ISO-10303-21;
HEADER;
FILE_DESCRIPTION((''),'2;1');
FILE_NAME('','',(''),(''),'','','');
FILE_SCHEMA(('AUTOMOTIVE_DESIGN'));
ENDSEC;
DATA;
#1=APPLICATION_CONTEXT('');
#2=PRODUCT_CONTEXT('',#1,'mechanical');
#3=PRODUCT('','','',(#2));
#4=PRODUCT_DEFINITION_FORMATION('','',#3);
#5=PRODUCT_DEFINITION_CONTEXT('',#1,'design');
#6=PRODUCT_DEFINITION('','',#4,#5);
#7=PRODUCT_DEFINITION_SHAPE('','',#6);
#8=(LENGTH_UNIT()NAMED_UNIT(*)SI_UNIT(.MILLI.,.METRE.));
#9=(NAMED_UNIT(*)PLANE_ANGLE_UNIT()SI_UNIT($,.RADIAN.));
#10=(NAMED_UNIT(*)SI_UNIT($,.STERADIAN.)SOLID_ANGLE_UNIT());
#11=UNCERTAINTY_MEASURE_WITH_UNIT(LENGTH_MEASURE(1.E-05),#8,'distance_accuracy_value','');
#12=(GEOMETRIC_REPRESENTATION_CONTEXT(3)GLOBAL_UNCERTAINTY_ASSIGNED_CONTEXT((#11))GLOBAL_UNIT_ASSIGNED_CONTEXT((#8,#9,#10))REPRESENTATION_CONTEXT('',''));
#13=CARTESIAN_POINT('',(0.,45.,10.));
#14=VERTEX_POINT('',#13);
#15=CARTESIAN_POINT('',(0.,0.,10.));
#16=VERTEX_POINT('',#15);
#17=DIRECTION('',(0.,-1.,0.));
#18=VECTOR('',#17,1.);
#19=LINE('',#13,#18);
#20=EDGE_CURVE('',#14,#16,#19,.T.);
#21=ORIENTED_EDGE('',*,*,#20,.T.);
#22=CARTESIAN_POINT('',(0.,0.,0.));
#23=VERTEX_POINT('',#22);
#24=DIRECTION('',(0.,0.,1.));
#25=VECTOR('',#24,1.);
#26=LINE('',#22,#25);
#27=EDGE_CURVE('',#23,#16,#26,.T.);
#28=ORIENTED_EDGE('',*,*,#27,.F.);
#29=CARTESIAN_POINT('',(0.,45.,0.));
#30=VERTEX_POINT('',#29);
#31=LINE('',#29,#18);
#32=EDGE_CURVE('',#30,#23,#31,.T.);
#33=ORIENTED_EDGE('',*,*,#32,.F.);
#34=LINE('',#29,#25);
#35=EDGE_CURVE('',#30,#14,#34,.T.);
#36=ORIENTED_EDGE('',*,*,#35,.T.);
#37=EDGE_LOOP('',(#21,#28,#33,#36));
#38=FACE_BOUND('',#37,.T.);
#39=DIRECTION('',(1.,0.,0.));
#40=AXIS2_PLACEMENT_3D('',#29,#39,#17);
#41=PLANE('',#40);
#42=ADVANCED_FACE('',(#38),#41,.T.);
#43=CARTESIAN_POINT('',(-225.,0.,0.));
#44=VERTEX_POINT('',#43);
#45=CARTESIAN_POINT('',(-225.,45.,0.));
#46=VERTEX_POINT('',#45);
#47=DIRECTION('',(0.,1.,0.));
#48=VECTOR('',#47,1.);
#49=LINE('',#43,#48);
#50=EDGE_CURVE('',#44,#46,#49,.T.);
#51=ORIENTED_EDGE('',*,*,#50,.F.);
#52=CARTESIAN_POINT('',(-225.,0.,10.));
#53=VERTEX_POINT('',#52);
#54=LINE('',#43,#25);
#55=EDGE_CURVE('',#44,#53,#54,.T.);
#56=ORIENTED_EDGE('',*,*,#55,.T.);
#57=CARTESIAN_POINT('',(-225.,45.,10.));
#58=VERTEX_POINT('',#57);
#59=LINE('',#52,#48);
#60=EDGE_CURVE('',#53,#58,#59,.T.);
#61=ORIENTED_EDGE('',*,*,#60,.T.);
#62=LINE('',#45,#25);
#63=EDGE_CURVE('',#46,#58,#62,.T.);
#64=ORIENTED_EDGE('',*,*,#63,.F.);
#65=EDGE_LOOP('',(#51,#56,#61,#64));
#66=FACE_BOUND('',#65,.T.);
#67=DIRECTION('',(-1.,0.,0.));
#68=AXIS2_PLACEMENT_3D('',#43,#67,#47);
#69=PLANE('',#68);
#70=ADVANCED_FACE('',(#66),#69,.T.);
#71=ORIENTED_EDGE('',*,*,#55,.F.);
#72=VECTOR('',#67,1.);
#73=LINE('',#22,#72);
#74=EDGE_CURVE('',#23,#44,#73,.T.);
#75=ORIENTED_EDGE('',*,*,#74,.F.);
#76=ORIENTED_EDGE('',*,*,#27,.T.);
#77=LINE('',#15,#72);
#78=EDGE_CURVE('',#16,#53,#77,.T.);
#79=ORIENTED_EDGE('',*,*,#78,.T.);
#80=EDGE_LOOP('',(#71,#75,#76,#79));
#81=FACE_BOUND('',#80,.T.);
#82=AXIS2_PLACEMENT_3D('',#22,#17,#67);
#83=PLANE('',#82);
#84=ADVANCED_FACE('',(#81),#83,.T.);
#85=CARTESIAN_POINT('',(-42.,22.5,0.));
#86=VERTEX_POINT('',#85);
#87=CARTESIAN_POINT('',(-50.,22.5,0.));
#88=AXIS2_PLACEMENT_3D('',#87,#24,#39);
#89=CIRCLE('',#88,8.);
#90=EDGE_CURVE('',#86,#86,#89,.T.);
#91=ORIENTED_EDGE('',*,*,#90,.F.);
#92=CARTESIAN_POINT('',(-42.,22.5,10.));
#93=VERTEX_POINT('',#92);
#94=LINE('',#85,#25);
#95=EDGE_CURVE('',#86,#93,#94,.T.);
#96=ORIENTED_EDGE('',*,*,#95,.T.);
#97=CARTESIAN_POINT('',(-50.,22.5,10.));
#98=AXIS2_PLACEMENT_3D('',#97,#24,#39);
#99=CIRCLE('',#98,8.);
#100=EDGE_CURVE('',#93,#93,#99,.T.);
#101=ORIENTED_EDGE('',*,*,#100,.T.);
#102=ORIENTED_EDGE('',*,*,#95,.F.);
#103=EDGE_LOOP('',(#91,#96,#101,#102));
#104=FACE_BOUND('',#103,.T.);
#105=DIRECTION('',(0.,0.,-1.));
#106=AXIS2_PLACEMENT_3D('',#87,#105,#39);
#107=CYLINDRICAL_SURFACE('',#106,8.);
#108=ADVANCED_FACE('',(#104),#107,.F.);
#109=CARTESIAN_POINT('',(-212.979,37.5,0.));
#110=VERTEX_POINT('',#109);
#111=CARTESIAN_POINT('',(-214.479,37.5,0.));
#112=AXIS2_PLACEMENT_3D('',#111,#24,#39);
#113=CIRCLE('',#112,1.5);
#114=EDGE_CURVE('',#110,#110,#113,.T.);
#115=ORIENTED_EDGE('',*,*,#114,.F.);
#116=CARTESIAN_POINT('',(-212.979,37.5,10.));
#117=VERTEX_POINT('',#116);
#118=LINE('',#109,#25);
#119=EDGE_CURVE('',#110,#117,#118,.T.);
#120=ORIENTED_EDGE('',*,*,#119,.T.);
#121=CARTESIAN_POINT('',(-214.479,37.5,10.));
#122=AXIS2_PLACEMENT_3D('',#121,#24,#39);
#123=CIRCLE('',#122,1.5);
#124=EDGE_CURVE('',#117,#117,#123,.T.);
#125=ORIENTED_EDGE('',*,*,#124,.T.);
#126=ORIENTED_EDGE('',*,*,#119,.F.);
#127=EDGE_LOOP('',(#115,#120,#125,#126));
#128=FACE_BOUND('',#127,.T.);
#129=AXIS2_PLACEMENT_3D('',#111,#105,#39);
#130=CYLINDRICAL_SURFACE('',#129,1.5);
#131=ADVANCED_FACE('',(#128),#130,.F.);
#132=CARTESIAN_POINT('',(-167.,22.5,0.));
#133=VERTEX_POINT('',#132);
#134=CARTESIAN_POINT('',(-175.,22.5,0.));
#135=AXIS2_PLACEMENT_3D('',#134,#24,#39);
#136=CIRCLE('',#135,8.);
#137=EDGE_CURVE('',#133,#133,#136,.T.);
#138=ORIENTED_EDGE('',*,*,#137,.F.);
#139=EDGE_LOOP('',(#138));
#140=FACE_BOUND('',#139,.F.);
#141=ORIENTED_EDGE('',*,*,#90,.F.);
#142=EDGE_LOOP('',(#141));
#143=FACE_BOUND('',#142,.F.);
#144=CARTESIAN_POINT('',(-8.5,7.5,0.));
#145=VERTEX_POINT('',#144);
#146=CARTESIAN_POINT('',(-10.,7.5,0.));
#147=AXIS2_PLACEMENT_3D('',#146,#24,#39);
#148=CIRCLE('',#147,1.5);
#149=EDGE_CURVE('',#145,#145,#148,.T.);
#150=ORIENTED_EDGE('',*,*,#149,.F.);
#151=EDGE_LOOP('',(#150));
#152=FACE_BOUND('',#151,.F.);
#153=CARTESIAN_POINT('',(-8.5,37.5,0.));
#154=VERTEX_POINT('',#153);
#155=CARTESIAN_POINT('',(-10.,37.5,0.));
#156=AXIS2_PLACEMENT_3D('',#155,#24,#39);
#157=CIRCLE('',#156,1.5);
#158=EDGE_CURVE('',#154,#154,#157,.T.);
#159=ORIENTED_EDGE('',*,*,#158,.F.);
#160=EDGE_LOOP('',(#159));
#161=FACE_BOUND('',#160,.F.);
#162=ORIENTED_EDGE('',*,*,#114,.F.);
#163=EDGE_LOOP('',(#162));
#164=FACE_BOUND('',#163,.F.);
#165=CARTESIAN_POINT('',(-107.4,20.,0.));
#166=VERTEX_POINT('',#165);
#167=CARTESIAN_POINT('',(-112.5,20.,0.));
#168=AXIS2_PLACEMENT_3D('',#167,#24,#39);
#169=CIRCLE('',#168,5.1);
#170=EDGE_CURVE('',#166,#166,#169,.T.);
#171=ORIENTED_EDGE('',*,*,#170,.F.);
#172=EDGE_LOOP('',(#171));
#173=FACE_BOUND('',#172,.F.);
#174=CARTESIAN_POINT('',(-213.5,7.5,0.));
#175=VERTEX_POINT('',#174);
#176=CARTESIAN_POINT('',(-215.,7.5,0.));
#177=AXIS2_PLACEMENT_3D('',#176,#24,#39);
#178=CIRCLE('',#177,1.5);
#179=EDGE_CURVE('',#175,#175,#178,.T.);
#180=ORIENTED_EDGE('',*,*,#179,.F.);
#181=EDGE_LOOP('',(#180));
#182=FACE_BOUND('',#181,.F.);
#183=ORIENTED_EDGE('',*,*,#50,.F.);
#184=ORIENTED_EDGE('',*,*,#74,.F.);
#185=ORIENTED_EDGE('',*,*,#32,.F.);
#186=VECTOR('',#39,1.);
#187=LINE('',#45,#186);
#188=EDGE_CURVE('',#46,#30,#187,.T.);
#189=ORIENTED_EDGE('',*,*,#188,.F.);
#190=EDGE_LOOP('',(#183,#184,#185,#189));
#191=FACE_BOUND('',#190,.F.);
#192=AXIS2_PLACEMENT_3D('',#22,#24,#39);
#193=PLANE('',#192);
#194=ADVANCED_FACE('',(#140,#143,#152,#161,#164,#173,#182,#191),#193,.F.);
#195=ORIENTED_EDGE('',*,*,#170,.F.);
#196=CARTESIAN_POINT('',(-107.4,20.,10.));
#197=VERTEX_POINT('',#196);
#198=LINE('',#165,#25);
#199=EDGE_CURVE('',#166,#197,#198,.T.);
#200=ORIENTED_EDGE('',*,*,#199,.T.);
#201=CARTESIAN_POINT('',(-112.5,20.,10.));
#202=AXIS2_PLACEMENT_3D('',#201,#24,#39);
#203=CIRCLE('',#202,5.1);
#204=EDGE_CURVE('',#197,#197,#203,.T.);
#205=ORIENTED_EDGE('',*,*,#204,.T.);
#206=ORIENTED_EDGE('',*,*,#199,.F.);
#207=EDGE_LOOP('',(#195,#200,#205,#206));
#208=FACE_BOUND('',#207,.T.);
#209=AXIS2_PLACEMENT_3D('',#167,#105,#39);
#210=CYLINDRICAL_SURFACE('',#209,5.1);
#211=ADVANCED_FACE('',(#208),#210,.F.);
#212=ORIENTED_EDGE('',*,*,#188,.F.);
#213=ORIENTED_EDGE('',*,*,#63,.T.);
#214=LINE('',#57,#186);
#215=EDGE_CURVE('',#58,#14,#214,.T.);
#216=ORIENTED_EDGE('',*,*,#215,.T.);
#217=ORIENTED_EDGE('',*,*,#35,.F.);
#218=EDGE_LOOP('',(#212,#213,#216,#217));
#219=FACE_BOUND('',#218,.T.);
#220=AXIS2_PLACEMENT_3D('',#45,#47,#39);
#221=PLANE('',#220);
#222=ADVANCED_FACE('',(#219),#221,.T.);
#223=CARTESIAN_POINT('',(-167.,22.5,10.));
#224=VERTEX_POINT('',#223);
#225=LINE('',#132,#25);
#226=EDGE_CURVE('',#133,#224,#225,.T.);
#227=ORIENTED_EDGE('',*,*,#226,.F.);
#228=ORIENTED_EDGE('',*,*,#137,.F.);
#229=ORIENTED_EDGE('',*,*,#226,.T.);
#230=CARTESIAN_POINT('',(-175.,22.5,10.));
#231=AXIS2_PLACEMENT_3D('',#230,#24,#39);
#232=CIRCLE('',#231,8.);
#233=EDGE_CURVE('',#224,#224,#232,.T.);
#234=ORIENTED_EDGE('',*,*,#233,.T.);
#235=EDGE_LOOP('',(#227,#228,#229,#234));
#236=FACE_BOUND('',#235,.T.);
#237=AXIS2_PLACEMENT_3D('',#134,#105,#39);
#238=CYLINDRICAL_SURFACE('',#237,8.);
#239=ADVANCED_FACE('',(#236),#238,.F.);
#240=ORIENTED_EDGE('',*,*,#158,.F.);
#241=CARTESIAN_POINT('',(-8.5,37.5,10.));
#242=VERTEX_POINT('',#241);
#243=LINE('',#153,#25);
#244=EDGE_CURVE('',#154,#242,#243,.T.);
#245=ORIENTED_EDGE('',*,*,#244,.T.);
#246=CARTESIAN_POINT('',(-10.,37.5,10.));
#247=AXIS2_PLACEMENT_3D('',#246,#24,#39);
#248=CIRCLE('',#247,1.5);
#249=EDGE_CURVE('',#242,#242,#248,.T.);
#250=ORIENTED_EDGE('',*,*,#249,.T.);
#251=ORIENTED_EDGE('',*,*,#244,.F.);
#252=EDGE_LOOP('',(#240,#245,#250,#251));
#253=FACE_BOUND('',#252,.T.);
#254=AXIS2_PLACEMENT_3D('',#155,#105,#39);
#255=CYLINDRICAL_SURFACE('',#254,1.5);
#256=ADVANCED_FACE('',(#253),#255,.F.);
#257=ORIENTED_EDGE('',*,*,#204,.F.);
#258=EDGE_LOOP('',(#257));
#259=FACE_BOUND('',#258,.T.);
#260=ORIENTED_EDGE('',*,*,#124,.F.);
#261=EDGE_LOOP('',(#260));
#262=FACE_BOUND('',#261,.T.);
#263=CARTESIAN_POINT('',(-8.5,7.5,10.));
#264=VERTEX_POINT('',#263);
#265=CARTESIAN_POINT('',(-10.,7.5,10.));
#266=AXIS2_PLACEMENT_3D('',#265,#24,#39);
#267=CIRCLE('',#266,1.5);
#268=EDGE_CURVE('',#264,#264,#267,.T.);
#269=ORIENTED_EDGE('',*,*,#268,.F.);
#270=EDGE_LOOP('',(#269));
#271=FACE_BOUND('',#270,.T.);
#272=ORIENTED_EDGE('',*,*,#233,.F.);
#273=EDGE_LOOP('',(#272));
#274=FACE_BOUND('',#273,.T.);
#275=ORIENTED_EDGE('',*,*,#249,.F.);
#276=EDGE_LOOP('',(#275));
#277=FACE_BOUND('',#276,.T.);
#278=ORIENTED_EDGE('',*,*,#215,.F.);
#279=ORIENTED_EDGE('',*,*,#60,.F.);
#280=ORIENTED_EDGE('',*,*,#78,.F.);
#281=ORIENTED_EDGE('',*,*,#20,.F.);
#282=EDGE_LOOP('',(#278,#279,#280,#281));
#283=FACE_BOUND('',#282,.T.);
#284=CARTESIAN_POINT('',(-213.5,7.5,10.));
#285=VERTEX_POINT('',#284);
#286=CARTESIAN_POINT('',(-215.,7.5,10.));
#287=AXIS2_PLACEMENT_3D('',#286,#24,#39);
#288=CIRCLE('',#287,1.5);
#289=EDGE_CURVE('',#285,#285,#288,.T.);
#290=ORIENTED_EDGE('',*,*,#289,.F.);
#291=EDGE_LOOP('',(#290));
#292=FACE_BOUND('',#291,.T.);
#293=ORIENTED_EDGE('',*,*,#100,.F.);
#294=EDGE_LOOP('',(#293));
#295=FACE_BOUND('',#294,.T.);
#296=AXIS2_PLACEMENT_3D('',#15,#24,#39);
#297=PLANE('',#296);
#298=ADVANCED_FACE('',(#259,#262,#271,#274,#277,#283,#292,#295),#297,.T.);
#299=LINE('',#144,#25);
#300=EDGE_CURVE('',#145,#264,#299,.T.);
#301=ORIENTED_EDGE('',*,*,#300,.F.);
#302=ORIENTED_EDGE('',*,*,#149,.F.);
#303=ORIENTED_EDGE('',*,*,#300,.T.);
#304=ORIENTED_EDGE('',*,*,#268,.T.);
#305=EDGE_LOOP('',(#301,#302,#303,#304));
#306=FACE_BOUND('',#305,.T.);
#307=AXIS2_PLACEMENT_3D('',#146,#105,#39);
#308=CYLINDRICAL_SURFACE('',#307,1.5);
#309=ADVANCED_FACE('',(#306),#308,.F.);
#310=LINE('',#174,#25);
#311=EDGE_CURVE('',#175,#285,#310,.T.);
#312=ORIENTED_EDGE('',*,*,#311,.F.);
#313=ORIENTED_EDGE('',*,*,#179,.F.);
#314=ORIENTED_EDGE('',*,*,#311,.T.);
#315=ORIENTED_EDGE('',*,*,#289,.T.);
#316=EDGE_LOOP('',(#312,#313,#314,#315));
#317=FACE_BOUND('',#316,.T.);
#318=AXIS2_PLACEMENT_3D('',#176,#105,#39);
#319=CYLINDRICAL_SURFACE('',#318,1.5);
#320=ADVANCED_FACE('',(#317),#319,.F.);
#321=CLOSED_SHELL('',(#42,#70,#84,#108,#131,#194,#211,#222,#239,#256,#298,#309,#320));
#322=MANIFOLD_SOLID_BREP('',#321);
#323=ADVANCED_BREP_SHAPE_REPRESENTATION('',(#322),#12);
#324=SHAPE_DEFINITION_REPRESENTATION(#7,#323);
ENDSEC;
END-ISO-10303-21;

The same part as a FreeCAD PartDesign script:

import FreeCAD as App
import Part
import Sketcher
from FreeCAD import Vector
Q = App.Units.Quantity

doc = App.newDocument("Part")
body = doc.addObject("PartDesign::Body", "Body")

# Sketch on XY plane
sketch1 = body.newObject("Sketcher::SketchObject", "Sketch")
sketch1.AttachmentSupport = (doc.getObject("XY_Plane"), [""])
sketch1.MapMode = "FlatFace"
sketch1.addGeometry([
    Part.LineSegment(Vector(-225, 0, 0), Vector(0, 0, 0)),  # 0
    Part.LineSegment(Vector(0, 0, 0), Vector(0, 45, 0)),  # 1
    Part.LineSegment(Vector(0, 45, 0), Vector(-225, 45, 0)),  # 2
    Part.LineSegment(Vector(-225, 45, 0), Vector(-225, 0, 0)),  # 3
    Part.Circle(Vector(-215, 7.5, 0), Vector(0, 0, 1), 1.5),  # 4
    Part.Circle(Vector(-10, 7.5, 0), Vector(0, 0, 1), 1.5),  # 5
    Part.Circle(Vector(-112.5, 20, 0), Vector(0, 0, 1), 5.1),  # 6
    Part.Circle(Vector(-175, 22.5, 0), Vector(0, 0, 1), 8),  # 7
    Part.Circle(Vector(-214.479, 37.5, 0), Vector(0, 0, 1), 1.5),  # 8
    Part.Circle(Vector(-50, 22.5, 0), Vector(0, 0, 1), 8),  # 9
    Part.Circle(Vector(-10, 37.5, 0), Vector(0, 0, 1), 1.5),  # 10
], False)
sketch1.addConstraint([
    Sketcher.Constraint("Coincident", 0, 2, 1, 1),
    Sketcher.Constraint("Coincident", 1, 2, 2, 1),
    Sketcher.Constraint("Coincident", 2, 2, 3, 1),
    Sketcher.Constraint("Coincident", 3, 2, 0, 1),
    Sketcher.Constraint("Horizontal", 0),
    Sketcher.Constraint("Vertical", 1),
    Sketcher.Constraint("Horizontal", 2),
    Sketcher.Constraint("Vertical", 3),
    Sketcher.Constraint("Coincident", 0, 2, -1, 1),
    Sketcher.Constraint("Equal", 4, 5),
    Sketcher.Constraint("Equal", 5, 8),
    Sketcher.Constraint("Equal", 7, 9),
    Sketcher.Constraint("Equal", 8, 10),
    Sketcher.Constraint("Horizontal", 4, 3, 5, 3),
    Sketcher.Constraint("Horizontal", 7, 3, 9, 3),
    Sketcher.Constraint("Horizontal", 8, 3, 10, 3),
    Sketcher.Constraint("Vertical", 5, 3, 10, 3),
    Sketcher.Constraint("Diameter", 4, Q("3 mm")),
    Sketcher.Constraint("Diameter", 7, Q("16 mm")),
    Sketcher.Constraint("Diameter", 6, Q("10.2 mm")),
    Sketcher.Constraint("DistanceX", 0, 1, 0, 2, Q("225 mm")),
    Sketcher.Constraint("DistanceY", 1, 1, 1, 2, Q("45 mm")),
    Sketcher.Constraint("DistanceX", 5, 3, -1, 1, Q("10 mm")),
    Sketcher.Constraint("DistanceX", 9, 3, -1, 1, Q("50 mm")),
    Sketcher.Constraint("DistanceY", 4, 3, 8, 3, Q("30 mm")),
    Sketcher.Constraint("DistanceY", 6, 3, 1, 2, Q("25 mm")),
    Sketcher.Constraint("DistanceX", 2, 2, 4, 3, Q("10 mm")),
    Sketcher.Constraint("DistanceX", 2, 2, 7, 3, Q("50 mm")),
    Sketcher.Constraint("DistanceY", -1, 1, 4, 3, Q("7.5 mm")),
    Sketcher.Constraint("DistanceX", 6, 3, -1, 1, Q("112.5 mm")),
    Sketcher.Constraint("DistanceY", -1, 1, 7, 3, Q("22.5 mm")),
    Sketcher.Constraint("DistanceX", 8, 3, -1, 1, Q("214.479 mm")),
])
pad1 = body.newObject("PartDesign::Pad", "Pad")
pad1.Profile = sketch1
pad1.Length = 10

doc.recompute()
